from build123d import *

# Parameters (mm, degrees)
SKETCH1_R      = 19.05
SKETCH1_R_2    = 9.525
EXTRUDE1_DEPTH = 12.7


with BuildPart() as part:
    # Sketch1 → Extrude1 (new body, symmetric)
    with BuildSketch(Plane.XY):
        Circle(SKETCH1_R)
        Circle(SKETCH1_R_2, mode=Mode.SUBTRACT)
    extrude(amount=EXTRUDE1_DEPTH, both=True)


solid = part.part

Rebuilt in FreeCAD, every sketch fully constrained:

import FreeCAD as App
import Part
import Sketcher

V = App.Vector
Q = App.Units.Quantity

doc = App.newDocument("Part")
params = doc.addObject("Spreadsheet::Sheet", "Params")
for row, (alias, value) in enumerate([
    ("sketch1_diameter", "1.5 in"),
    ("sketch1_diameter2", "0.75 in"),
    ("pad1_length", "1 in"),
], start=1):
    params.set(f"A{row}", alias)
    params.set(f"B{row}", "=" + value)
    params.setAlias(f"B{row}", alias)

body = doc.addObject("PartDesign::Body", "Body")

# Sketch on XY plane
sketch1 = body.newObject("Sketcher::SketchObject", "Sketch")
sketch1.AttachmentSupport = (doc.getObject("XY_Plane"), [""])
sketch1.MapMode = "FlatFace"
sketch1.addGeometry(Part.Circle(V(0, 0, 0), V(0, 0, 1), 19), False)
sketch1.addGeometry(Part.Circle(V(0, 0, 0), V(0, 0, 1), 10), False)
sketch1.addConstraint(Sketcher.Constraint("Coincident", 0, 3, -1, 1))
sketch1.addConstraint(Sketcher.Constraint("Coincident", 1, 3, -1, 1))
sketch1.addConstraint(Sketcher.Constraint("Diameter", 0, Q("1.5 in")))
sketch1.addConstraint(Sketcher.Constraint("Diameter", 1, Q("0.75 in")))
sketch1.setExpression("Constraints[2]", "Params.sketch1_diameter")
sketch1.setExpression("Constraints[3]", "Params.sketch1_diameter2")
pad1 = body.newObject("PartDesign::Pad", "Pad")
pad1.Profile = sketch1
pad1.setExpression("Length", "Params.pad1_length")
pad1.Midplane = True

doc.recompute()
